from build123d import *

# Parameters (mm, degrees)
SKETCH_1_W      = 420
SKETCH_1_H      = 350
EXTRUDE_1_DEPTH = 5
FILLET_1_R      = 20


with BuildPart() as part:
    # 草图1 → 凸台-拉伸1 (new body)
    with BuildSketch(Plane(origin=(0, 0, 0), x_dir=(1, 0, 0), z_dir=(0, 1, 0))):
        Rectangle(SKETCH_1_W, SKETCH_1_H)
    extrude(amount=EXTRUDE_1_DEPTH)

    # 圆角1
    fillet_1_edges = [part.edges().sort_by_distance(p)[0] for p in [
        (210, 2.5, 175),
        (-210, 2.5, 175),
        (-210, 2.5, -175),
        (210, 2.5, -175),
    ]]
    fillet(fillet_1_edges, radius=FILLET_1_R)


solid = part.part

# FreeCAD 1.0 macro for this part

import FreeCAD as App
import Part
import Sketcher

V = App.Vector
Q = App.Units.Quantity


def edges_at(feature, points):
    """Names of the edges that pass closest to the given points."""
    edges = feature.Shape.Edges
    near = lambda p: min(range(len(edges)), key=lambda i: edges[i].distToShape(Part.Vertex(*p))[0])
    return sorted({f"Edge{near(p) + 1}" for p in points})


def add_polygon(sketch, points):
    """Adds a closed chain of lines whose ends are joined by coincident constraints."""
    first, n = sketch.GeometryCount, len(points)
    for a, b in zip(points, points[1:] + points[:1]):
        sketch.addGeometry(Part.LineSegment(App.Vector(*a, 0), App.Vector(*b, 0)), False)
    for i in range(n):
        sketch.addConstraint(Sketcher.Constraint("Coincident", first + i, 2, first + (i + 1) % n, 1))

doc = App.newDocument("Part")
params = doc.addObject("Spreadsheet::Sheet", "Params")
for row, (alias, value) in enumerate([
    ("sketch1_width", "420 mm"),
    ("sketch1_height", "350 mm"),
    ("pad1_length", "5 mm"),
    ("fillet_radius", "20 mm"),
], start=1):
    params.set(f"A{row}", alias)
    params.set(f"B{row}", "=" + value)
    params.setAlias(f"B{row}", alias)

body = doc.addObject("PartDesign::Body", "Body")

sketch1 = body.newObject("Sketcher::SketchObject", "Sketch")
sketch1.AttachmentSupport = (doc.getObject("XZ_Plane"), [""])
sketch1.MapMode = "FlatFace"
add_polygon(sketch1, [(-210, -175), (-210, 175), (210, 175), (210, -175)])
sketch1.addConstraint(Sketcher.Constraint("Vertical", 0))
sketch1.addConstraint(Sketcher.Constraint("Horizontal", 1))
sketch1.addConstraint(Sketcher.Constraint("Vertical", 2))
sketch1.addConstraint(Sketcher.Constraint("Horizontal", 3))
sketch1.addConstraint(Sketcher.Constraint("Symmetric", 0, 2, 2, 2, -1, 1))
sketch1.addConstraint(Sketcher.Constraint("DistanceX", 1, 1, 1, 2, Q("420 mm")))
sketch1.addConstraint(Sketcher.Constraint("DistanceY", 0, 1, 0, 2, Q("350 mm")))
sketch1.setExpression("Constraints[9]", "Params.sketch1_width")
sketch1.setExpression("Constraints[10]", "Params.sketch1_height")
pad1 = body.newObject("PartDesign::Pad", "Pad")
pad1.Profile = sketch1
pad1.setExpression("Length", "Params.pad1_length")
pad1.Reversed = True
doc.recompute()

fillet = body.newObject("PartDesign::Fillet", "Fillet")
fillet.Base = (pad1, edges_at(pad1, [
    (210, 2.5, 175),
    (-210, 2.5, 175),
    (-210, 2.5, -175),
    (210, 2.5, -175),
]))
fillet.setExpression("Radius", "Params.fillet_radius")

doc.recompute()
